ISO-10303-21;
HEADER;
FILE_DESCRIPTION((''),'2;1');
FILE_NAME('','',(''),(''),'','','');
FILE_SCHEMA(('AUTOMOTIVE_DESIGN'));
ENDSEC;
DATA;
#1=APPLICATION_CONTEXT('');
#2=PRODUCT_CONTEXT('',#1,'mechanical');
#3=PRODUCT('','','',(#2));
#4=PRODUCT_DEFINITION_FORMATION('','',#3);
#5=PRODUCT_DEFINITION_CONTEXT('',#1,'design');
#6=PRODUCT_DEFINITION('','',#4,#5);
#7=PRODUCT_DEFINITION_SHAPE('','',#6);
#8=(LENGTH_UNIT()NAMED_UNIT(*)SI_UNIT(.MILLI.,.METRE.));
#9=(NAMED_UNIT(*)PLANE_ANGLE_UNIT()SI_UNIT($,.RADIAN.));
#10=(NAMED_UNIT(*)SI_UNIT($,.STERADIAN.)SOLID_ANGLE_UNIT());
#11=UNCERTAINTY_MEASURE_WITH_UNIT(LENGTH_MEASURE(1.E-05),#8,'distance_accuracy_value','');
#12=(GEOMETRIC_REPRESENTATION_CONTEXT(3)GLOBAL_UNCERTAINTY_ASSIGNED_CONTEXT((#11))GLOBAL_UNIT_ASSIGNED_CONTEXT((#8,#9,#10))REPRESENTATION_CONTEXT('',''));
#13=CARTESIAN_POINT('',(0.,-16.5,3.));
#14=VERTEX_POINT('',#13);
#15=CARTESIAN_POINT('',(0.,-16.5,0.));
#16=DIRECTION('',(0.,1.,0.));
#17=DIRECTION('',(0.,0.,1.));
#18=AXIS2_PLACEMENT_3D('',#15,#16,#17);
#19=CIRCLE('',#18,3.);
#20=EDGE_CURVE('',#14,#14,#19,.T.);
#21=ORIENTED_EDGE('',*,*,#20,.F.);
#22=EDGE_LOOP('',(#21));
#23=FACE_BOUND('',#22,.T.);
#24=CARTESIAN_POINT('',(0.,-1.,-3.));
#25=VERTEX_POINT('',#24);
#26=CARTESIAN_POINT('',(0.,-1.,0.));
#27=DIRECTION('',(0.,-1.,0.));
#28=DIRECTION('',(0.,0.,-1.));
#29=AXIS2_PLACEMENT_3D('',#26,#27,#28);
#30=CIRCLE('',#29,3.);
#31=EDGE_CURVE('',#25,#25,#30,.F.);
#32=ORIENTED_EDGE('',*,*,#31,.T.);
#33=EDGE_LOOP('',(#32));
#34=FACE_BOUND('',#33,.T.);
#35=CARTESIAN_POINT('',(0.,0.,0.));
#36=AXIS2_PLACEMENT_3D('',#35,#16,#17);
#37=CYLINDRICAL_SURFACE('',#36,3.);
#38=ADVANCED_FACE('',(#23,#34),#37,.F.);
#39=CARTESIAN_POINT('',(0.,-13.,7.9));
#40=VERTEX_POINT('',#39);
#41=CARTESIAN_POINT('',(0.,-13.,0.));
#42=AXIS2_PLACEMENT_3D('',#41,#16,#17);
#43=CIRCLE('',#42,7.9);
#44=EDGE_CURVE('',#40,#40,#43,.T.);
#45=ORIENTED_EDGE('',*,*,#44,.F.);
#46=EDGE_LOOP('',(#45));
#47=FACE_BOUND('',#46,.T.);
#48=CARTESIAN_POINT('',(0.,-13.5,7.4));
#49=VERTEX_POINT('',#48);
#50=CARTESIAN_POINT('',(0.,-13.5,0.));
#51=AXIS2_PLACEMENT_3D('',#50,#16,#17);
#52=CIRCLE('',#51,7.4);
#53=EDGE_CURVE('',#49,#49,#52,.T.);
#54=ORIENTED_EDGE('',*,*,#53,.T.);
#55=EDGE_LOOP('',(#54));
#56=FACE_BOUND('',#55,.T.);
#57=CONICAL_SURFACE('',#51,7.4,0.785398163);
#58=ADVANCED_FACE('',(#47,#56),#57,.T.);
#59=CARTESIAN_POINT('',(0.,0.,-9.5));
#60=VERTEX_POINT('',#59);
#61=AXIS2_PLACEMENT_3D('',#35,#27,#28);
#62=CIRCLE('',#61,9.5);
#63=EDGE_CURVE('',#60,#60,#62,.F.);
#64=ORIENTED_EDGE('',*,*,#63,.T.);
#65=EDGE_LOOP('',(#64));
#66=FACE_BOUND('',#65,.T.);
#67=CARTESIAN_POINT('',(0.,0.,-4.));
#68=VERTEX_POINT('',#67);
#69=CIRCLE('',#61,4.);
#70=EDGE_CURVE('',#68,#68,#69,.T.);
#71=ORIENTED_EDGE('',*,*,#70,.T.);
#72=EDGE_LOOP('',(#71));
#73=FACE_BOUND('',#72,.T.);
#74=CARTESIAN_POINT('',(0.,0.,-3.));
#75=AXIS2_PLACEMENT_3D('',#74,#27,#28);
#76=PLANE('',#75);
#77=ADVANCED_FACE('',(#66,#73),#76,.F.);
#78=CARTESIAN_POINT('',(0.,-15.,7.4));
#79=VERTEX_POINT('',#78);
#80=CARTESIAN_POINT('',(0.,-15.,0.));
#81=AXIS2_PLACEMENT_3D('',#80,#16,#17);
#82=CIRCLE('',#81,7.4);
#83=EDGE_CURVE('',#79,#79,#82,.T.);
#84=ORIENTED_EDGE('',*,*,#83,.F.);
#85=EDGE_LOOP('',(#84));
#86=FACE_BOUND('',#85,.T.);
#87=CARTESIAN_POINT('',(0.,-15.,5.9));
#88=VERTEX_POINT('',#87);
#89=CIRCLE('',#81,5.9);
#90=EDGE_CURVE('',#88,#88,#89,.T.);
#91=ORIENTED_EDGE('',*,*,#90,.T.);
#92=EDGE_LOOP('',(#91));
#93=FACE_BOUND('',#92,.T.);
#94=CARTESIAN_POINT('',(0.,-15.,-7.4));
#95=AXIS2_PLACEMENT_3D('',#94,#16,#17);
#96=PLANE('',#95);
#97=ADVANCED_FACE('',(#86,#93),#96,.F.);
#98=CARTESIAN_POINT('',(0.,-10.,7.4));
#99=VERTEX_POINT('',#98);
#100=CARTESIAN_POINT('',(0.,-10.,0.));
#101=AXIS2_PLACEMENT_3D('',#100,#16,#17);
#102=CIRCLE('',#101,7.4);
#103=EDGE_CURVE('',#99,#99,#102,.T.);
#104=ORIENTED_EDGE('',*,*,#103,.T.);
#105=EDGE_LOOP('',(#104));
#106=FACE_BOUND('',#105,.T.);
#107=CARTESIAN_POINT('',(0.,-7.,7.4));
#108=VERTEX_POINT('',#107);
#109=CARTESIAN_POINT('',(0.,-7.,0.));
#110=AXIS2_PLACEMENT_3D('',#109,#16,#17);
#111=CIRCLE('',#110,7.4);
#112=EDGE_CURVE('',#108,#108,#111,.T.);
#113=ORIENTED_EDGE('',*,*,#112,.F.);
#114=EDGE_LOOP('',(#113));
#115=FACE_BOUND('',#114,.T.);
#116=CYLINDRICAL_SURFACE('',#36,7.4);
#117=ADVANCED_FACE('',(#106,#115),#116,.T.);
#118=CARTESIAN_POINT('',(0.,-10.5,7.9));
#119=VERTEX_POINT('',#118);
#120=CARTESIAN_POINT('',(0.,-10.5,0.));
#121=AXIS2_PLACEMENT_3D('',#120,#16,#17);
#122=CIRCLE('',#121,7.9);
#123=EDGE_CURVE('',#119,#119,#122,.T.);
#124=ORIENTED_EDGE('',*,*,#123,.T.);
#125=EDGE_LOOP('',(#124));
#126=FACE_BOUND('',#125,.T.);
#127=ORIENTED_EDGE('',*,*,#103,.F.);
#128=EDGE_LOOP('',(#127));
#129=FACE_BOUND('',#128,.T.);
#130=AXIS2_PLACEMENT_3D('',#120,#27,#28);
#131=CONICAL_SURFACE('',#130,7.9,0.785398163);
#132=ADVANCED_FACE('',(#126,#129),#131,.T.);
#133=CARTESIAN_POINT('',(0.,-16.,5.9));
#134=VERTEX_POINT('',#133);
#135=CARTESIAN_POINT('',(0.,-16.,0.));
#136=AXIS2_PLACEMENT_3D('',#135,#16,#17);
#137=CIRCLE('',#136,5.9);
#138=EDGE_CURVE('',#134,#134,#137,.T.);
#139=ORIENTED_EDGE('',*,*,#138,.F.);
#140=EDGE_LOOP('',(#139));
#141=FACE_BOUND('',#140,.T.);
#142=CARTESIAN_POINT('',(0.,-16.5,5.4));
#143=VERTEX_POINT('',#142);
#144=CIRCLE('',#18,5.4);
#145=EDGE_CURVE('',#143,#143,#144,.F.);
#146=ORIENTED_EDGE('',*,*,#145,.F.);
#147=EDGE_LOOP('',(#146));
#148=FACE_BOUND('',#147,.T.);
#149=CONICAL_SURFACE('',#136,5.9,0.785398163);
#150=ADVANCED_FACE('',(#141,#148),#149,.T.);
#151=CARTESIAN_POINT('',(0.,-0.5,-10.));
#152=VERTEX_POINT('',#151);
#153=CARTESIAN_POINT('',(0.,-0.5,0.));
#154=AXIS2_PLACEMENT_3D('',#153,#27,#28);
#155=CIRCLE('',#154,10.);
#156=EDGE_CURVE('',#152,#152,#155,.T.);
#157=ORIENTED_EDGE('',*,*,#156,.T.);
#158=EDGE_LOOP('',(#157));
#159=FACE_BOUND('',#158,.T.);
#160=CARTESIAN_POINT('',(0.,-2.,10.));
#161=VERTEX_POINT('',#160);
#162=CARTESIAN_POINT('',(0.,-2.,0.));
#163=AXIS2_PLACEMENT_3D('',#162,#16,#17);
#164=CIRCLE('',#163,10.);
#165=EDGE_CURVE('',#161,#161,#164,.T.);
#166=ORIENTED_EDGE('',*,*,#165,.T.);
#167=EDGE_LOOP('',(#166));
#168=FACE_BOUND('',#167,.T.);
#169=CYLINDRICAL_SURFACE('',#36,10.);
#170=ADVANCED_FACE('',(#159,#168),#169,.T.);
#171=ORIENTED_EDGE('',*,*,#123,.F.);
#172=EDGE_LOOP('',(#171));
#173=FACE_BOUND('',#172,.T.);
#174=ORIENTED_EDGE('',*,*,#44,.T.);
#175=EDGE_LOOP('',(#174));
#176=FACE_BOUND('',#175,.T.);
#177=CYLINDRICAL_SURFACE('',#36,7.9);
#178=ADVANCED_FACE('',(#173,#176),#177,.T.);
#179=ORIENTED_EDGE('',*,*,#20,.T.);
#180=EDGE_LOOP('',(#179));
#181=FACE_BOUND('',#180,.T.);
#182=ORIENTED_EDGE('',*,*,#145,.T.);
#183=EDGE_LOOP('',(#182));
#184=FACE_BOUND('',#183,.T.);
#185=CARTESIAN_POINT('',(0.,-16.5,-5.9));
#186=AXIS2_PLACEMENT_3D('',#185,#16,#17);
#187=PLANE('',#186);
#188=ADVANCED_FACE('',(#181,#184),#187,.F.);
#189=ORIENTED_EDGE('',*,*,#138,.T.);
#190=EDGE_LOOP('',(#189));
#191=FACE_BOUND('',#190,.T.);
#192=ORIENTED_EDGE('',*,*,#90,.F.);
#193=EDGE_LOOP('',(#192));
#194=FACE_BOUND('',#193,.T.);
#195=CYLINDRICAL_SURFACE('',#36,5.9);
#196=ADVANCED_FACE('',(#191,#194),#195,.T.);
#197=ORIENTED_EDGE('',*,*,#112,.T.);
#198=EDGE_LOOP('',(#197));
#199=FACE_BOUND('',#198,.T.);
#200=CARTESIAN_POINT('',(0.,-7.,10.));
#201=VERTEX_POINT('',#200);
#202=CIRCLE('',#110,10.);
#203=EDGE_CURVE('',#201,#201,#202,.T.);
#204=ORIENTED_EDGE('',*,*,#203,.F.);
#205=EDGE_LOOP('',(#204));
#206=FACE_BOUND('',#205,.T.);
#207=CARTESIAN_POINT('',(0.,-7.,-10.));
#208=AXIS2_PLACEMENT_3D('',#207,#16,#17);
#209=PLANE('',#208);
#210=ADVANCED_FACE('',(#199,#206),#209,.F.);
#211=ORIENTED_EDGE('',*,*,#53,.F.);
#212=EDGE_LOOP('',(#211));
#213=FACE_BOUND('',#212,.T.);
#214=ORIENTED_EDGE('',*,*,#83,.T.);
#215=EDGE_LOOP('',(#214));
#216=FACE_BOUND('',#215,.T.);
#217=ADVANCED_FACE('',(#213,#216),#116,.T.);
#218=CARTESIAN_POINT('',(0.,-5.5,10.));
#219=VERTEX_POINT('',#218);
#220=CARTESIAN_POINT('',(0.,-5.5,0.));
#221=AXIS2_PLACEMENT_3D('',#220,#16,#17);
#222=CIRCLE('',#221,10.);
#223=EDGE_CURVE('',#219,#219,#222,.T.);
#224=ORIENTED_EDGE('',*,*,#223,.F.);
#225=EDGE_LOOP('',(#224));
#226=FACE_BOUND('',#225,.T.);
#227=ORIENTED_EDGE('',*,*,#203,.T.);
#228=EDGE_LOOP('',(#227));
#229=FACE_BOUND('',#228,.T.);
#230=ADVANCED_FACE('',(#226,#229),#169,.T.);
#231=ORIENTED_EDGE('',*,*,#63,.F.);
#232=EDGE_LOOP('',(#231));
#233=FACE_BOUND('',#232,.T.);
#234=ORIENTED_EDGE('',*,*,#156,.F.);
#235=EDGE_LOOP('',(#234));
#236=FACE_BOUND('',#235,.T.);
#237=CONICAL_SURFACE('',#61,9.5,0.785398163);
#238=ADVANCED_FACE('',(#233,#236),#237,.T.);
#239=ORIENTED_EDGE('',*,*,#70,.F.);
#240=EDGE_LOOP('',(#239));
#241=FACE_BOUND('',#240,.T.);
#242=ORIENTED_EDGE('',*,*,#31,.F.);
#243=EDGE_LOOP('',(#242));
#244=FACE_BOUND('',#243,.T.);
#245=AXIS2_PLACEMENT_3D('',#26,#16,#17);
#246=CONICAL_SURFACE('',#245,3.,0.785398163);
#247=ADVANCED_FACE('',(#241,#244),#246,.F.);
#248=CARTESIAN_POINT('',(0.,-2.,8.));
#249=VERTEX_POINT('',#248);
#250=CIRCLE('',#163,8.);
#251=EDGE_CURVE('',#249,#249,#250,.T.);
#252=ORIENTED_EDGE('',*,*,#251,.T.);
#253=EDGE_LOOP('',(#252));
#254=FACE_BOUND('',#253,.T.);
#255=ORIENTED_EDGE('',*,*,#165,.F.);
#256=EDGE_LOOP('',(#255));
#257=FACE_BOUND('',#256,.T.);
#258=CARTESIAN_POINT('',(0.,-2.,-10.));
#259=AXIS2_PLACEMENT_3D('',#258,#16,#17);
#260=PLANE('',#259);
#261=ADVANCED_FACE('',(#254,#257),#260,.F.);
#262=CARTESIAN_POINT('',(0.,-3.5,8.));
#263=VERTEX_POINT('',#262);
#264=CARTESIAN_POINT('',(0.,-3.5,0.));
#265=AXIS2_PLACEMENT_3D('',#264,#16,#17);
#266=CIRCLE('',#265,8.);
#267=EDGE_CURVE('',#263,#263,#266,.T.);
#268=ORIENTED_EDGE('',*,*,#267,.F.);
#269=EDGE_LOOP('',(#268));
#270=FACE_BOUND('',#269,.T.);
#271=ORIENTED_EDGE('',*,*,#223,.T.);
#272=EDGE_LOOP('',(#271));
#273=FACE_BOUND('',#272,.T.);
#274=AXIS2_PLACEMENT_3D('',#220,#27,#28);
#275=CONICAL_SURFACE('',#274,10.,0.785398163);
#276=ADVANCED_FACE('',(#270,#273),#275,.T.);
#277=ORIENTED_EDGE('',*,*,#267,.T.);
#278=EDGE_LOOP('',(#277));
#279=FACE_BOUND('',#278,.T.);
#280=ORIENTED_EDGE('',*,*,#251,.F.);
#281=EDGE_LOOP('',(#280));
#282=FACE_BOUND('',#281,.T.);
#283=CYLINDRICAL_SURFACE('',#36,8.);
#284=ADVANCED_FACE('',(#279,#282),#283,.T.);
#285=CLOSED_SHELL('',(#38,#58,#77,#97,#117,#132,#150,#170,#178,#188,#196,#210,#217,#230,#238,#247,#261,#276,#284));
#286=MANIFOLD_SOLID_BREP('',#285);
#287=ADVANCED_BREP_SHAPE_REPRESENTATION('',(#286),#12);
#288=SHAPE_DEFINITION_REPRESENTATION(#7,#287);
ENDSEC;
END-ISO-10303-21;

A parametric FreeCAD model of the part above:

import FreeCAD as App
import Part
import Sketcher
from FreeCAD import Vector
Q = App.Units.Quantity


def edges_at(feature, points):
    """Names of the edges that pass closest to the given points."""
    edges = feature.Shape.Edges
    near = lambda p: min(range(len(edges)), key=lambda i: edges[i].distToShape(Part.Vertex(*p))[0])
    return sorted({f"Edge{near(p) + 1}" for p in points})

doc = App.newDocument("Part")
body = doc.addObject("PartDesign::Body", "Body")

sketch1 = body.newObject("Sketcher::SketchObject", "Sketch")
sketch1.AttachmentSupport = (doc.getObject("YZ_Plane"), [""])
sketch1.MapMode = "FlatFace"
sketch1.addGeometry(Part.LineSegment(Vector(0, -10, 0), Vector(0, -3, 0)), False)
sketch1.addGeometry(Part.LineSegment(Vector(0, -3, 0), Vector(-16.5, -3, 0)), False)
sketch1.addGeometry(Part.LineSegment(Vector(-16.5, -3, 0), Vector(-16.5, -5.9, 0)), False)
sketch1.addGeometry(Part.LineSegment(Vector(-16.5, -5.9, 0), Vector(-15, -5.9, 0)), False)
sketch1.addGeometry(Part.LineSegment(Vector(-15, -5.9, 0), Vector(-15, -7.4, 0)), False)
sketch1.addGeometry(Part.LineSegment(Vector(-15, -7.4, 0), Vector(-13.5, -7.4, 0)), False)
sketch1.addGeometry(Part.LineSegment(Vector(-13.5, -7.4, 0), Vector(-13, -7.9, 0)), False)
sketch1.addGeometry(Part.LineSegment(Vector(-13, -7.9, 0), Vector(-10.5, -7.9, 0)), False)
sketch1.addGeometry(Part.LineSegment(Vector(-10.5, -7.9, 0), Vector(-10, -7.4, 0)), False)
sketch1.addGeometry(Part.LineSegment(Vector(-10, -7.4, 0), Vector(-7, -7.4, 0)), False)
sketch1.addGeometry(Part.LineSegment(Vector(-7, -7.4, 0), Vector(-7, -10, 0)), False)
sketch1.addGeometry(Part.LineSegment(Vector(-7, -10, 0), Vector(-5.5, -10, 0)), False)
sketch1.addGeometry(Part.LineSegment(Vector(-5.5, -10, 0), Vector(-3.5, -8, 0)), False)
sketch1.addGeometry(Part.LineSegment(Vector(-3.5, -8, 0), Vector(-2, -8, 0)), False)
sketch1.addGeometry(Part.LineSegment(Vector(-2, -8, 0), Vector(-2, -10, 0)), False)
sketch1.addGeometry(Part.LineSegment(Vector(-2, -10, 0), Vector(0, -10, 0)), False)
sketch1.addConstraint(Sketcher.Constraint("Coincident", 0, 2, 1, 1))
sketch1.addConstraint(Sketcher.Constraint("Coincident", 1, 2, 2, 1))
sketch1.addConstraint(Sketcher.Constraint("Coincident", 2, 2, 3, 1))
sketch1.addConstraint(Sketcher.Constraint("Coincident", 3, 2, 4, 1))
sketch1.addConstraint(Sketcher.Constraint("Coincident", 4, 2, 5, 1))
sketch1.addConstraint(Sketcher.Constraint("Coincident", 5, 2, 6, 1))
sketch1.addConstraint(Sketcher.Constraint("Coincident", 6, 2, 7, 1))
sketch1.addConstraint(Sketcher.Constraint("Coincident", 7, 2, 8, 1))
sketch1.addConstraint(Sketcher.Constraint("Coincident", 8, 2, 9, 1))
sketch1.addConstraint(Sketcher.Constraint("Coincident", 9, 2, 10, 1))
sketch1.addConstraint(Sketcher.Constraint("Coincident", 10, 2, 11, 1))
sketch1.addConstraint(Sketcher.Constraint("Coincident", 11, 2, 12, 1))
sketch1.addConstraint(Sketcher.Constraint("Coincident", 12, 2, 13, 1))
sketch1.addConstraint(Sketcher.Constraint("Coincident", 13, 2, 14, 1))
sketch1.addConstraint(Sketcher.Constraint("Coincident", 14, 2, 15, 1))
sketch1.addConstraint(Sketcher.Constraint("Coincident", 15, 2, 0, 1))
sketch1.addConstraint(Sketcher.Constraint("Vertical", 0))
sketch1.addConstraint(Sketcher.Constraint("Horizontal", 1))
sketch1.addConstraint(Sketcher.Constraint("Vertical", 2))
sketch1.addConstraint(Sketcher.Constraint("Horizontal", 3))
sketch1.addConstraint(Sketcher.Constraint("Vertical", 4))
sketch1.addConstraint(Sketcher.Constraint("Horizontal", 5))
sketch1.addConstraint(Sketcher.Constraint("Horizontal", 7))
sketch1.addConstraint(Sketcher.Constraint("Horizontal", 9))
sketch1.addConstraint(Sketcher.Constraint("Vertical", 10))
sketch1.addConstraint(Sketcher.Constraint("Horizontal", 11))
sketch1.addConstraint(Sketcher.Constraint("Horizontal", 13))
sketch1.addConstraint(Sketcher.Constraint("Vertical", 14))
sketch1.addConstraint(Sketcher.Constraint("Horizontal", 15))
sketch1.addConstraint(Sketcher.Constraint("PointOnObject", 0, 2, -2))
sketch1.addConstraint(Sketcher.Constraint("Perpendicular", 6, 8))
sketch1.addConstraint(Sketcher.Constraint("Parallel", 8, 12))
sketch1.addConstraint(Sketcher.Constraint("Horizontal", 5, 2, 8, 2))
sketch1.addConstraint(Sketcher.Constraint("Horizontal", 11, 2, 14, 2))
sketch1.addConstraint(Sketcher.Constraint("Equal", 3, 5))
sketch1.addConstraint(Sketcher.Constraint("Equal", 5, 11))
sketch1.addConstraint(Sketcher.Constraint("Equal", 11, 13))
sketch1.addConstraint(Sketcher.Constraint("Equal", 13, 4))
sketch1.addConstraint(Sketcher.Constraint("Equal", 15, 14))
sketch1.addConstraint(Sketcher.Constraint("Equal", 6, 8))
sketch1.addConstraint(Sketcher.Constraint("DistanceX", 9, 1, 9, 2, Q("3 mm")))
sketch1.addConstraint(Sketcher.Constraint("DistanceX", 15, 1, 15, 2, Q("2 mm")))
sketch1.addConstraint(Sketcher.Constraint("DistanceY", 0, 1, 0, 2, Q("7 mm")))
sketch1.addConstraint(Sketcher.Constraint("DistanceX", 1, 2, 1, 1, Q("16.5 mm")))
sketch1.addConstraint(Sketcher.Constraint("DistanceX", 3, 1, 3, 2, Q("1.5 mm")))
sketch1.addConstraint(Sketcher.Constraint("DistanceX", 7, 1, 7, 2, Q("2.5 mm")))
sketch1.addConstraint(Sketcher.Constraint("DistanceY", 2, 2, 2, 1, Q("2.9 mm")))
sketch1.addConstraint(Sketcher.Constraint("DistanceY", 0, 2, -1, 1, Q("3 mm")))
revolution = body.newObject("PartDesign::Revolution", "Revolution")
revolution.Profile = sketch1
revolution.ReferenceAxis = (sketch1, ["H_Axis"])
revolution.Angle = 360
doc.recompute()

chamfer = body.newObject("PartDesign::Chamfer", "Chamfer")
chamfer.Base = (revolution, edges_at(revolution, [(0, 0, -10), (0, -16.5, -5.9)]))
chamfer.Size = 0.5
doc.recompute()

chamfer2 = body.newObject("PartDesign::Chamfer", "Chamfer001")
chamfer2.Base = (chamfer, edges_at(chamfer, [(0, 0, -3)]))
chamfer2.Size = 1

doc.recompute()
